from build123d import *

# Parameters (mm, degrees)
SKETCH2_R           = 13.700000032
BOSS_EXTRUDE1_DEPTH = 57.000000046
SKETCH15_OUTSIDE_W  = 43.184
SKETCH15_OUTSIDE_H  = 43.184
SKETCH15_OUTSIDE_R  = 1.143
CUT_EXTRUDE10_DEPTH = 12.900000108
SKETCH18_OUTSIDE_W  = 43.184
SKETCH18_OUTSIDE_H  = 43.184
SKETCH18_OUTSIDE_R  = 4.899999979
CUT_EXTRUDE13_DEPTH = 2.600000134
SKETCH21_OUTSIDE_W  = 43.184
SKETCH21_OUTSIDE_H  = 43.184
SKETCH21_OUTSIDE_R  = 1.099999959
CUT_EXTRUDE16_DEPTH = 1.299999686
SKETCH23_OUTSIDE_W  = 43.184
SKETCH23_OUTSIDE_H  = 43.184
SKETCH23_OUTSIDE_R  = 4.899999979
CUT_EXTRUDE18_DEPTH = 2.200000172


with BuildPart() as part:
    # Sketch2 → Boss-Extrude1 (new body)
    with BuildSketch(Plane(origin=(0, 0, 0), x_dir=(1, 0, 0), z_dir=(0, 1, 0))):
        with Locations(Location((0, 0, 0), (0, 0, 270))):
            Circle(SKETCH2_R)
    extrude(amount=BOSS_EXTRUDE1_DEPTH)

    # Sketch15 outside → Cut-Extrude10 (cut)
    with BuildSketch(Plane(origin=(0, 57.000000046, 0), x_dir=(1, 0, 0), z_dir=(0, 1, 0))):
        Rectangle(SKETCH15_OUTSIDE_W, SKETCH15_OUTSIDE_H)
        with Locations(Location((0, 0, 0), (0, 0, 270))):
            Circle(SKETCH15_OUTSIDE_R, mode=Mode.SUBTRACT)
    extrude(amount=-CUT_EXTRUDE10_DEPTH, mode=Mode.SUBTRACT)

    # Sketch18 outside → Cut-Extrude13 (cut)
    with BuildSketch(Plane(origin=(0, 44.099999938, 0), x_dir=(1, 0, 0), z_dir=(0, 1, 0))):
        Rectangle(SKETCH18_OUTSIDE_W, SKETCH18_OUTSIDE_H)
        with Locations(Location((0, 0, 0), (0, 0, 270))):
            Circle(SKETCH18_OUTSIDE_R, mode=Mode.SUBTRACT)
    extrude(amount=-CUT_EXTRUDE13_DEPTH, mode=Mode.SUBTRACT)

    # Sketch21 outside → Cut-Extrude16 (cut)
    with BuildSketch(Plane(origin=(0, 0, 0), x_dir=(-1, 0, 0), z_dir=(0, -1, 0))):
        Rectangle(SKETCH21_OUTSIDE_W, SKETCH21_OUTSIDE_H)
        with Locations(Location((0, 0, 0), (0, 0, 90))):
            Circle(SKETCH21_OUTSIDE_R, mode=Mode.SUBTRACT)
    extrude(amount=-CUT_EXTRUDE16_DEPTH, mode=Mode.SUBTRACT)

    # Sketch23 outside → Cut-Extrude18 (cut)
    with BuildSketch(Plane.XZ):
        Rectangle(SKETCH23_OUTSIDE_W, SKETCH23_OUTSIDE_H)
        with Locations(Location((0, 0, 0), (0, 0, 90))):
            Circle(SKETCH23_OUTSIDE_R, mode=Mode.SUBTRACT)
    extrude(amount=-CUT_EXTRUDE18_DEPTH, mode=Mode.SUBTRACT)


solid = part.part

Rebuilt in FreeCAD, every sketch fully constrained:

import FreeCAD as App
import Part
import Sketcher

V = App.Vector
Q = App.Units.Quantity


def add_polygon(sketch, points):
    """Adds a closed chain of lines whose ends are joined by coincident constraints."""
    first, n = sketch.GeometryCount, len(points)
    for a, b in zip(points, points[1:] + points[:1]):
        sketch.addGeometry(Part.LineSegment(App.Vector(*a, 0), App.Vector(*b, 0)), False)
    for i in range(n):
        sketch.addConstraint(Sketcher.Constraint("Coincident", first + i, 2, first + (i + 1) % n, 1))

doc = App.newDocument("Part")
body = doc.addObject("PartDesign::Body", "Body")

# Sketch on XZ plane
sketch1 = body.newObject("Sketcher::SketchObject", "Sketch")
sketch1.AttachmentSupport = (doc.getObject("XZ_Plane"), [""])
sketch1.MapMode = "FlatFace"
sketch1.addGeometry(Part.Circle(V(0, 0, 0), V(0, 0, 1), 14), False)
sketch1.addConstraint([
    Sketcher.Constraint("Coincident", 0, 3, -1, 1),
    Sketcher.Constraint("Diameter", 0, Q("27.4 mm")),
])
pad1 = body.newObject("PartDesign::Pad", "Pad")
pad1.Profile = sketch1
pad1.Length = 57
pad1.Reversed = True

# Sketch on XZ plane
sketch2 = body.newObject("Sketcher::SketchObject", "Sketch001")
sketch2.AttachmentSupport = (doc.getObject("XZ_Plane"), [""])
sketch2.MapMode = "FlatFace"
sketch2.AttachmentOffset = App.Placement(V(0, 0, -57), App.Rotation())
add_polygon(sketch2, [(-21.6, -21.6), (-21.6, 21.6), (21.6, 21.6), (21.6, -21.6)])  # lines 0-3
sketch2.addGeometry(Part.Circle(V(0, 0, 0), V(0, 0, 1), 1.1), False)  # 4
sketch2.addConstraint([
    Sketcher.Constraint("Vertical", 0),
    Sketcher.Constraint("Horizontal", 1),
    Sketcher.Constraint("Vertical", 2),
    Sketcher.Constraint("Horizontal", 3),
    Sketcher.Constraint("Coincident", 4, 3, -1, 1),
    Sketcher.Constraint("Symmetric", 0, 2, 2, 2, -1, 1),
    Sketcher.Constraint("Equal", 3, 0),
    Sketcher.Constraint("Diameter", 4, Q("2.286 mm")),
    Sketcher.Constraint("DistanceX", 1, 1, 1, 2, Q("43.184 mm")),
])
pocket1 = body.newObject("PartDesign::Pocket", "Pocket")
pocket1.Profile = sketch2
pocket1.Length = 12.9
pocket1.Reversed = True

# Sketch on XZ plane
sketch3 = body.newObject("Sketcher::SketchObject", "Sketch002")
sketch3.AttachmentSupport = (doc.getObject("XZ_Plane"), [""])
sketch3.MapMode = "FlatFace"
sketch3.AttachmentOffset = App.Placement(V(0, 0, -44.1), App.Rotation())
add_polygon(sketch3, [(-21.6, -21.6), (-21.6, 21.6), (21.6, 21.6), (21.6, -21.6)])  # lines 0-3
sketch3.addGeometry(Part.Circle(V(0, 0, 0), V(0, 0, 1), 4.9), False)  # 4
sketch3.addConstraint([
    Sketcher.Constraint("Vertical", 0),
    Sketcher.Constraint("Horizontal", 1),
    Sketcher.Constraint("Vertical", 2),
    Sketcher.Constraint("Horizontal", 3),
    Sketcher.Constraint("Coincident", 4, 3, -1, 1),
    Sketcher.Constraint("Symmetric", 0, 2, 2, 2, -1, 1),
    Sketcher.Constraint("Equal", 3, 0),
    Sketcher.Constraint("Diameter", 4, Q("9.8 mm")),
    Sketcher.Constraint("DistanceX", 1, 1, 1, 2, Q("43.184 mm")),
])
pocket2 = body.newObject("PartDesign::Pocket", "Pocket001")
pocket2.Profile = sketch3
pocket2.Length = 2.6
pocket2.Reversed = True

# Sketch on XZ plane
sketch4 = body.newObject("Sketcher::SketchObject", "Sketch003")
sketch4.AttachmentSupport = (doc.getObject("XZ_Plane"), [""])
sketch4.MapMode = "FlatFace"
add_polygon(sketch4, [(21.6, -21.6), (21.6, 21.6), (-21.6, 21.6), (-21.6, -21.6)])  # lines 0-3
sketch4.addGeometry(Part.Circle(V(0, 0, 0), V(0, 0, 1), 1.1), False)  # 4
sketch4.addConstraint([
    Sketcher.Constraint("Vertical", 0),
    Sketcher.Constraint("Horizontal", 1),
    Sketcher.Constraint("Vertical", 2),
    Sketcher.Constraint("Horizontal", 3),
    Sketcher.Constraint("Coincident", 4, 3, -1, 1),
    Sketcher.Constraint("Symmetric", 0, 2, 2, 2, -1, 1),
    Sketcher.Constraint("Equal", 3, 0),
    Sketcher.Constraint("Diameter", 4, Q("2.2 mm")),
    Sketcher.Constraint("DistanceX", 1, 2, 1, 1, Q("43.184 mm")),
])
pocket3 = body.newObject("PartDesign::Pocket", "Pocket002")
pocket3.Profile = sketch4
pocket3.Length = 1.3

# Sketch on XZ plane
sketch5 = body.newObject("Sketcher::SketchObject", "Sketch004")
sketch5.AttachmentSupport = (doc.getObject("XZ_Plane"), [""])
sketch5.MapMode = "FlatFace"
add_polygon(sketch5, [(-21.6, 21.6), (-21.6, -21.6), (21.6, -21.6), (21.6, 21.6)])  # lines 0-3
sketch5.addGeometry(Part.Circle(V(0, 0, 0), V(0, 0, 1), 4.9), False)  # 4
sketch5.addConstraint([
    Sketcher.Constraint("Vertical", 0),
    Sketcher.Constraint("Horizontal", 1),
    Sketcher.Constraint("Vertical", 2),
    Sketcher.Constraint("Horizontal", 3),
    Sketcher.Constraint("Coincident", 4, 3, -1, 1),
    Sketcher.Constraint("Symmetric", 0, 2, 2, 2, -1, 1),
    Sketcher.Constraint("Equal", 3, 0),
    Sketcher.Constraint("Diameter", 4, Q("9.8 mm")),
    Sketcher.Constraint("DistanceX", 1, 1, 1, 2, Q("43.184 mm")),
])
pocket4 = body.newObject("PartDesign::Pocket", "Pocket003")
pocket4.Profile = sketch5
pocket4.Length = 2.2

doc.recompute()
